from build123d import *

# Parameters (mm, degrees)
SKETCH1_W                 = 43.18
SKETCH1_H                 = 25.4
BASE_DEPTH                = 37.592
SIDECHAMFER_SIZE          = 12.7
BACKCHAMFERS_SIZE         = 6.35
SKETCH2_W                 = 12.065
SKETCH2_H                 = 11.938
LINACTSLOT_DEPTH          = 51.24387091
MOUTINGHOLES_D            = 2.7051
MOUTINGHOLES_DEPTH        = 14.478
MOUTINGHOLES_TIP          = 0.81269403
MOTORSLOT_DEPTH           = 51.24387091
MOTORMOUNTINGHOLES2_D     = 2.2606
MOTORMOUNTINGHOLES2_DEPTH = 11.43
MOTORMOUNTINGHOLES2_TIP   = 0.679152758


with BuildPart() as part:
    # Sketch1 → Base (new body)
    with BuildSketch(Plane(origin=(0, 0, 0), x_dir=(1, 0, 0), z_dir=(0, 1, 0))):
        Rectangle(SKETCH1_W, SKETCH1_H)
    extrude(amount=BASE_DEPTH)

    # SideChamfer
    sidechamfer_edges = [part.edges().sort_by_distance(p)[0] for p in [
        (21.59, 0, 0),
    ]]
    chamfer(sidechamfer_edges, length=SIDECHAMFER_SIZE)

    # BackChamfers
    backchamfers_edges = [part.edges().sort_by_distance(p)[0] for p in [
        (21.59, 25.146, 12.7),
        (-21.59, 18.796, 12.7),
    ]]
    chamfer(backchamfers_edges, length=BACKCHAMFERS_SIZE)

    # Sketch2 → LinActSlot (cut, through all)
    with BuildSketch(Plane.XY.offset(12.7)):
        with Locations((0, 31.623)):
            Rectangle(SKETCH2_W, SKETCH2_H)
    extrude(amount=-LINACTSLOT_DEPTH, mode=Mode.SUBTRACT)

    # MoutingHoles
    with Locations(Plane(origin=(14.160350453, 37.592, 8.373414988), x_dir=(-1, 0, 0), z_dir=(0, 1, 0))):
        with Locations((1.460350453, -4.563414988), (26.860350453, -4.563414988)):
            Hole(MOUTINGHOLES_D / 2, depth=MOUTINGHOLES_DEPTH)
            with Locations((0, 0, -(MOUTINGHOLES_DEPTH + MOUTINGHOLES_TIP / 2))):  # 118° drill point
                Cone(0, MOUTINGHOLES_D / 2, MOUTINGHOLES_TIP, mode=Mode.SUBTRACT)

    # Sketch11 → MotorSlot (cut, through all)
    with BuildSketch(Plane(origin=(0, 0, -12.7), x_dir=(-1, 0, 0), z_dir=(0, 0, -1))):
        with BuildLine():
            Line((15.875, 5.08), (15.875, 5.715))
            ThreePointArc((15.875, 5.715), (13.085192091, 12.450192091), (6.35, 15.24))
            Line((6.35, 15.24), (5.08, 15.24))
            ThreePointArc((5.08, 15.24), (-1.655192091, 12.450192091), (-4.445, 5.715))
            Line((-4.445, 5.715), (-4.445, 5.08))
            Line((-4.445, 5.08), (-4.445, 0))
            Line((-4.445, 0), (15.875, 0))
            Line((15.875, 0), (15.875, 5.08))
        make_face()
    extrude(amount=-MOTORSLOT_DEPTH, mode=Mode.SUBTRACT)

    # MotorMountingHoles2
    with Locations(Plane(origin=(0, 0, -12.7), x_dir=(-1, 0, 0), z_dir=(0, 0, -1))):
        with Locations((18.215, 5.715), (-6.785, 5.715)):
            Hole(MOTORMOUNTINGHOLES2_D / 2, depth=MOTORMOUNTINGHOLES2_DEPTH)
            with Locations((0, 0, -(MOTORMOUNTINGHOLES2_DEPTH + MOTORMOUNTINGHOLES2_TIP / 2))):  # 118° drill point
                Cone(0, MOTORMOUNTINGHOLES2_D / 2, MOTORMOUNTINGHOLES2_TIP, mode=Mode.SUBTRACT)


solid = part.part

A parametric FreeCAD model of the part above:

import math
import FreeCAD as App
import Part
import Sketcher

V = App.Vector
Q = App.Units.Quantity


def edges_at(feature, points):
    """Names of the edges that pass closest to the given points."""
    edges = feature.Shape.Edges
    near = lambda p: min(range(len(edges)), key=lambda i: edges[i].distToShape(Part.Vertex(*p))[0])
    return sorted({f"Edge{near(p) + 1}" for p in points})


def add_polygon(sketch, points):
    """Adds a closed chain of lines whose ends are joined by coincident constraints."""
    first, n = sketch.GeometryCount, len(points)
    for a, b in zip(points, points[1:] + points[:1]):
        sketch.addGeometry(Part.LineSegment(App.Vector(*a, 0), App.Vector(*b, 0)), False)
    for i in range(n):
        sketch.addConstraint(Sketcher.Constraint("Coincident", first + i, 2, first + (i + 1) % n, 1))

doc = App.newDocument("Part")
body = doc.addObject("PartDesign::Body", "Body")

# Sketch on XZ plane
sketch1 = doc.addObject("Sketcher::SketchObject", "Sketch")
body.addObject(sketch1)
sketch1.AttachmentSupport = (doc.XZ_Plane, [""])
sketch1.MapMode = "FlatFace"
add_polygon(sketch1, [(-22, -13), (-22, 13), (22, 13), (22, -13)])  # lines 0-3
sketch1.addConstraint([
    Sketcher.Constraint("Vertical", 0),
    Sketcher.Constraint("Horizontal", 1),
    Sketcher.Constraint("Vertical", 2),
    Sketcher.Constraint("Horizontal", 3),
    Sketcher.Constraint("Symmetric", 0, 2, 2, 2, -1, 1),
    Sketcher.Constraint("DistanceY", 0, 1, 0, 2, Q("1 in")),
    Sketcher.Constraint("DistanceX", 1, 1, 1, 2, Q("1.7 in")),
])
pad1 = doc.addObject("PartDesign::Pad", "Pad")
body.addObject(pad1)
pad1.Profile = sketch1
pad1.Length = Q("1.48 in")
pad1.Reversed = True
doc.recompute()

chamfer = doc.addObject("PartDesign::Chamfer", "Chamfer")
body.addObject(chamfer)
chamfer.Base = (pad1, edges_at(pad1, [(21.59, 0, 0)]))
chamfer.Size = Q("0.5 in")
doc.recompute()

chamfer2 = doc.addObject("PartDesign::Chamfer", "Chamfer001")
body.addObject(chamfer2)
chamfer2.Base = (chamfer, edges_at(chamfer, [(21.59, 25.146, 12.7), (-21.59, 18.796, 12.7)]))
chamfer2.Size = Q("0.25 in")

# Sketch on XY plane
sketch2 = doc.addObject("Sketcher::SketchObject", "Sketch001")
body.addObject(sketch2)
sketch2.AttachmentSupport = (doc.XY_Plane, [""])
sketch2.MapMode = "FlatFace"
sketch2.AttachmentOffset = App.Placement(V(0, 0, 0.5 * 25.4), App.Rotation())
add_polygon(sketch2, [(-6, 38), (-6, 26), (6, 26), (6, 38)])  # lines 0-3
sketch2.addConstraint([
    Sketcher.Constraint("Vertical", 0),
    Sketcher.Constraint("Horizontal", 1),
    Sketcher.Constraint("Vertical", 2),
    Sketcher.Constraint("Horizontal", 3),
    Sketcher.Constraint("DistanceY", 0, 2, 0, 1, Q("0.47 in")),
    Sketcher.Constraint("DistanceX", 1, 1, 1, 2, Q("0.475 in")),
    Sketcher.Constraint("DistanceY", -1, 1, 0, 2, Q("1.01 in")),
    Sketcher.Constraint("DistanceX", 0, 2, -1, 1, Q("0.2375 in")),
])
pocket1 = doc.addObject("PartDesign::Pocket", "Pocket")
body.addObject(pocket1)
pocket1.Profile = sketch2
pocket1.Type = "ThroughAll"

# Sketch on XZ plane
sketch3 = doc.addObject("Sketcher::SketchObject", "Sketch002")
body.addObject(sketch3)
sketch3.AttachmentSupport = (doc.XZ_Plane, [""])
sketch3.MapMode = "FlatFace"
sketch3.AttachmentOffset = App.Placement(V(0, 0, -1.48 * 25.4), App.Rotation())
sketch3.addGeometry([
    Part.Circle(V(12.7, 3.8, 0), V(0, 0, 1), 1.4),
    Part.Circle(V(-12.7, 3.8, 0), V(0, 0, 1), 1.4),
], False)
sketch3.addConstraint([
    Sketcher.Constraint("Equal", 0, 1),
    Sketcher.Constraint("Symmetric", 0, 3, 1, 3, -2),
    Sketcher.Constraint("DistanceX", 1, 3, 0, 3, Q("1 in")),
    Sketcher.Constraint("Diameter", 0, Q("0.1065 in")),
    Sketcher.Constraint("DistanceY", -1, 1, 0, 3, Q("0.15 in")),
])
doc.recompute()
hole = doc.addObject("PartDesign::Hole", "Hole")
body.addObject(hole)
hole.Profile = sketch3
hole.ThreadType = "None"
hole.Diameter = Q("0.1065 in")
hole.DepthType = "Dimension"
hole.Depth = Q("0.57 in")
hole.DrillPoint = "Angled"
hole.DrillPointAngle = 118
hole.Reversed = True

# Sketch on XY plane
sketch4 = doc.addObject("Sketcher::SketchObject", "Sketch003")
body.addObject(sketch4)
sketch4.AttachmentSupport = (doc.XY_Plane, [""])
sketch4.MapMode = "FlatFace"
sketch4.AttachmentOffset = App.Placement(V(0, 0, -0.5 * 25.4), App.Rotation())
sketch4.addGeometry([
    Part.ArcOfCircle(Part.Circle(V(-6.4, 5.7, 0), V(0, 0, 1), 9.5), math.radians(90), math.radians(180)),  # 0
    Part.LineSegment(V(-6.3, 15.2, 0), V(-5.1, 15.2, 0)),  # 1
    Part.ArcOfCircle(Part.Circle(V(-5.1, 5.7, 0), V(0, 0, 1), 9.5), math.radians(0), math.radians(90)),  # 2
    Part.LineSegment(V(4.4, 5.7, 0), V(4.4, 0, 0)),  # 3
    Part.LineSegment(V(4.4, 0, 0), V(-15.9, 0, 0)),  # 4
    Part.LineSegment(V(-15.9, 0, 0), V(-15.9, 5.7, 0)),  # 5
], False)
sketch4.addConstraint([
    Sketcher.Constraint("Tangent", 0, 1, 1, 1),
    Sketcher.Constraint("Tangent", 1, 2, 2, 2),
    Sketcher.Constraint("Tangent", 2, 1, 3, 1),
    Sketcher.Constraint("Coincident", 3, 2, 4, 1),
    Sketcher.Constraint("Coincident", 4, 2, 5, 1),
    Sketcher.Constraint("Tangent", 5, 2, 0, 2),
    Sketcher.Constraint("Horizontal", 1),
    Sketcher.Constraint("Vertical", 3),
    Sketcher.Constraint("Horizontal", 4),
    Sketcher.Constraint("Vertical", 5),
    Sketcher.Constraint("Equal", 0, 2),
    Sketcher.Constraint("PointOnObject", 3, 2, -1),
    Sketcher.Constraint("DistanceX", 4, 2, 4, 1, Q("0.8 in")),
    Sketcher.Constraint("Radius", 0, Q("0.375 in")),
    Sketcher.Constraint("DistanceX", 2, 3, -1, 1, Q("0.2 in")),
    Sketcher.Constraint("DistanceY", -1, 1, 0, 1, Q("0.6 in")),
])
pocket2 = doc.addObject("PartDesign::Pocket", "Pocket001")
body.addObject(pocket2)
pocket2.Profile = sketch4
pocket2.Type = "ThroughAll"
pocket2.Reversed = True

# Sketch on XY plane
sketch5 = doc.addObject("Sketcher::SketchObject", "Sketch004")
body.addObject(sketch5)
sketch5.AttachmentSupport = (doc.XY_Plane, [""])
sketch5.MapMode = "FlatFace"
sketch5.AttachmentOffset = App.Placement(V(0, 0, -0.5 * 25.4), App.Rotation())
sketch5.addGeometry([
    Part.Circle(V(-18.2, 5.7, 0), V(0, 0, 1), 1.1),
    Part.Circle(V(6.8, 5.7, 0), V(0, 0, 1), 1.1),
], False)
sketch5.addConstraint([
    Sketcher.Constraint("Equal", 0, 1),
    Sketcher.Constraint("Horizontal", 0, 3, 1, 3),
    Sketcher.Constraint("Diameter", 0, Q("0.089 in")),
    Sketcher.Constraint("DistanceY", -1, 1, 0, 3, Q("0.225 in")),
    Sketcher.Constraint("DistanceX", 0, 3, -1, 1, Q("18.215 mm")),
    Sketcher.Constraint("DistanceX", -1, 1, 1, 3, Q("6.785 mm")),
])
doc.recompute()
hole2 = doc.addObject("PartDesign::Hole", "Hole001")
body.addObject(hole2)
hole2.Profile = sketch5
hole2.ThreadType = "None"
hole2.Diameter = Q("0.089 in")
hole2.DepthType = "Dimension"
hole2.Depth = Q("0.45 in")
hole2.DrillPoint = "Angled"
hole2.DrillPointAngle = 118
hole2.Reversed = True

doc.recompute()
